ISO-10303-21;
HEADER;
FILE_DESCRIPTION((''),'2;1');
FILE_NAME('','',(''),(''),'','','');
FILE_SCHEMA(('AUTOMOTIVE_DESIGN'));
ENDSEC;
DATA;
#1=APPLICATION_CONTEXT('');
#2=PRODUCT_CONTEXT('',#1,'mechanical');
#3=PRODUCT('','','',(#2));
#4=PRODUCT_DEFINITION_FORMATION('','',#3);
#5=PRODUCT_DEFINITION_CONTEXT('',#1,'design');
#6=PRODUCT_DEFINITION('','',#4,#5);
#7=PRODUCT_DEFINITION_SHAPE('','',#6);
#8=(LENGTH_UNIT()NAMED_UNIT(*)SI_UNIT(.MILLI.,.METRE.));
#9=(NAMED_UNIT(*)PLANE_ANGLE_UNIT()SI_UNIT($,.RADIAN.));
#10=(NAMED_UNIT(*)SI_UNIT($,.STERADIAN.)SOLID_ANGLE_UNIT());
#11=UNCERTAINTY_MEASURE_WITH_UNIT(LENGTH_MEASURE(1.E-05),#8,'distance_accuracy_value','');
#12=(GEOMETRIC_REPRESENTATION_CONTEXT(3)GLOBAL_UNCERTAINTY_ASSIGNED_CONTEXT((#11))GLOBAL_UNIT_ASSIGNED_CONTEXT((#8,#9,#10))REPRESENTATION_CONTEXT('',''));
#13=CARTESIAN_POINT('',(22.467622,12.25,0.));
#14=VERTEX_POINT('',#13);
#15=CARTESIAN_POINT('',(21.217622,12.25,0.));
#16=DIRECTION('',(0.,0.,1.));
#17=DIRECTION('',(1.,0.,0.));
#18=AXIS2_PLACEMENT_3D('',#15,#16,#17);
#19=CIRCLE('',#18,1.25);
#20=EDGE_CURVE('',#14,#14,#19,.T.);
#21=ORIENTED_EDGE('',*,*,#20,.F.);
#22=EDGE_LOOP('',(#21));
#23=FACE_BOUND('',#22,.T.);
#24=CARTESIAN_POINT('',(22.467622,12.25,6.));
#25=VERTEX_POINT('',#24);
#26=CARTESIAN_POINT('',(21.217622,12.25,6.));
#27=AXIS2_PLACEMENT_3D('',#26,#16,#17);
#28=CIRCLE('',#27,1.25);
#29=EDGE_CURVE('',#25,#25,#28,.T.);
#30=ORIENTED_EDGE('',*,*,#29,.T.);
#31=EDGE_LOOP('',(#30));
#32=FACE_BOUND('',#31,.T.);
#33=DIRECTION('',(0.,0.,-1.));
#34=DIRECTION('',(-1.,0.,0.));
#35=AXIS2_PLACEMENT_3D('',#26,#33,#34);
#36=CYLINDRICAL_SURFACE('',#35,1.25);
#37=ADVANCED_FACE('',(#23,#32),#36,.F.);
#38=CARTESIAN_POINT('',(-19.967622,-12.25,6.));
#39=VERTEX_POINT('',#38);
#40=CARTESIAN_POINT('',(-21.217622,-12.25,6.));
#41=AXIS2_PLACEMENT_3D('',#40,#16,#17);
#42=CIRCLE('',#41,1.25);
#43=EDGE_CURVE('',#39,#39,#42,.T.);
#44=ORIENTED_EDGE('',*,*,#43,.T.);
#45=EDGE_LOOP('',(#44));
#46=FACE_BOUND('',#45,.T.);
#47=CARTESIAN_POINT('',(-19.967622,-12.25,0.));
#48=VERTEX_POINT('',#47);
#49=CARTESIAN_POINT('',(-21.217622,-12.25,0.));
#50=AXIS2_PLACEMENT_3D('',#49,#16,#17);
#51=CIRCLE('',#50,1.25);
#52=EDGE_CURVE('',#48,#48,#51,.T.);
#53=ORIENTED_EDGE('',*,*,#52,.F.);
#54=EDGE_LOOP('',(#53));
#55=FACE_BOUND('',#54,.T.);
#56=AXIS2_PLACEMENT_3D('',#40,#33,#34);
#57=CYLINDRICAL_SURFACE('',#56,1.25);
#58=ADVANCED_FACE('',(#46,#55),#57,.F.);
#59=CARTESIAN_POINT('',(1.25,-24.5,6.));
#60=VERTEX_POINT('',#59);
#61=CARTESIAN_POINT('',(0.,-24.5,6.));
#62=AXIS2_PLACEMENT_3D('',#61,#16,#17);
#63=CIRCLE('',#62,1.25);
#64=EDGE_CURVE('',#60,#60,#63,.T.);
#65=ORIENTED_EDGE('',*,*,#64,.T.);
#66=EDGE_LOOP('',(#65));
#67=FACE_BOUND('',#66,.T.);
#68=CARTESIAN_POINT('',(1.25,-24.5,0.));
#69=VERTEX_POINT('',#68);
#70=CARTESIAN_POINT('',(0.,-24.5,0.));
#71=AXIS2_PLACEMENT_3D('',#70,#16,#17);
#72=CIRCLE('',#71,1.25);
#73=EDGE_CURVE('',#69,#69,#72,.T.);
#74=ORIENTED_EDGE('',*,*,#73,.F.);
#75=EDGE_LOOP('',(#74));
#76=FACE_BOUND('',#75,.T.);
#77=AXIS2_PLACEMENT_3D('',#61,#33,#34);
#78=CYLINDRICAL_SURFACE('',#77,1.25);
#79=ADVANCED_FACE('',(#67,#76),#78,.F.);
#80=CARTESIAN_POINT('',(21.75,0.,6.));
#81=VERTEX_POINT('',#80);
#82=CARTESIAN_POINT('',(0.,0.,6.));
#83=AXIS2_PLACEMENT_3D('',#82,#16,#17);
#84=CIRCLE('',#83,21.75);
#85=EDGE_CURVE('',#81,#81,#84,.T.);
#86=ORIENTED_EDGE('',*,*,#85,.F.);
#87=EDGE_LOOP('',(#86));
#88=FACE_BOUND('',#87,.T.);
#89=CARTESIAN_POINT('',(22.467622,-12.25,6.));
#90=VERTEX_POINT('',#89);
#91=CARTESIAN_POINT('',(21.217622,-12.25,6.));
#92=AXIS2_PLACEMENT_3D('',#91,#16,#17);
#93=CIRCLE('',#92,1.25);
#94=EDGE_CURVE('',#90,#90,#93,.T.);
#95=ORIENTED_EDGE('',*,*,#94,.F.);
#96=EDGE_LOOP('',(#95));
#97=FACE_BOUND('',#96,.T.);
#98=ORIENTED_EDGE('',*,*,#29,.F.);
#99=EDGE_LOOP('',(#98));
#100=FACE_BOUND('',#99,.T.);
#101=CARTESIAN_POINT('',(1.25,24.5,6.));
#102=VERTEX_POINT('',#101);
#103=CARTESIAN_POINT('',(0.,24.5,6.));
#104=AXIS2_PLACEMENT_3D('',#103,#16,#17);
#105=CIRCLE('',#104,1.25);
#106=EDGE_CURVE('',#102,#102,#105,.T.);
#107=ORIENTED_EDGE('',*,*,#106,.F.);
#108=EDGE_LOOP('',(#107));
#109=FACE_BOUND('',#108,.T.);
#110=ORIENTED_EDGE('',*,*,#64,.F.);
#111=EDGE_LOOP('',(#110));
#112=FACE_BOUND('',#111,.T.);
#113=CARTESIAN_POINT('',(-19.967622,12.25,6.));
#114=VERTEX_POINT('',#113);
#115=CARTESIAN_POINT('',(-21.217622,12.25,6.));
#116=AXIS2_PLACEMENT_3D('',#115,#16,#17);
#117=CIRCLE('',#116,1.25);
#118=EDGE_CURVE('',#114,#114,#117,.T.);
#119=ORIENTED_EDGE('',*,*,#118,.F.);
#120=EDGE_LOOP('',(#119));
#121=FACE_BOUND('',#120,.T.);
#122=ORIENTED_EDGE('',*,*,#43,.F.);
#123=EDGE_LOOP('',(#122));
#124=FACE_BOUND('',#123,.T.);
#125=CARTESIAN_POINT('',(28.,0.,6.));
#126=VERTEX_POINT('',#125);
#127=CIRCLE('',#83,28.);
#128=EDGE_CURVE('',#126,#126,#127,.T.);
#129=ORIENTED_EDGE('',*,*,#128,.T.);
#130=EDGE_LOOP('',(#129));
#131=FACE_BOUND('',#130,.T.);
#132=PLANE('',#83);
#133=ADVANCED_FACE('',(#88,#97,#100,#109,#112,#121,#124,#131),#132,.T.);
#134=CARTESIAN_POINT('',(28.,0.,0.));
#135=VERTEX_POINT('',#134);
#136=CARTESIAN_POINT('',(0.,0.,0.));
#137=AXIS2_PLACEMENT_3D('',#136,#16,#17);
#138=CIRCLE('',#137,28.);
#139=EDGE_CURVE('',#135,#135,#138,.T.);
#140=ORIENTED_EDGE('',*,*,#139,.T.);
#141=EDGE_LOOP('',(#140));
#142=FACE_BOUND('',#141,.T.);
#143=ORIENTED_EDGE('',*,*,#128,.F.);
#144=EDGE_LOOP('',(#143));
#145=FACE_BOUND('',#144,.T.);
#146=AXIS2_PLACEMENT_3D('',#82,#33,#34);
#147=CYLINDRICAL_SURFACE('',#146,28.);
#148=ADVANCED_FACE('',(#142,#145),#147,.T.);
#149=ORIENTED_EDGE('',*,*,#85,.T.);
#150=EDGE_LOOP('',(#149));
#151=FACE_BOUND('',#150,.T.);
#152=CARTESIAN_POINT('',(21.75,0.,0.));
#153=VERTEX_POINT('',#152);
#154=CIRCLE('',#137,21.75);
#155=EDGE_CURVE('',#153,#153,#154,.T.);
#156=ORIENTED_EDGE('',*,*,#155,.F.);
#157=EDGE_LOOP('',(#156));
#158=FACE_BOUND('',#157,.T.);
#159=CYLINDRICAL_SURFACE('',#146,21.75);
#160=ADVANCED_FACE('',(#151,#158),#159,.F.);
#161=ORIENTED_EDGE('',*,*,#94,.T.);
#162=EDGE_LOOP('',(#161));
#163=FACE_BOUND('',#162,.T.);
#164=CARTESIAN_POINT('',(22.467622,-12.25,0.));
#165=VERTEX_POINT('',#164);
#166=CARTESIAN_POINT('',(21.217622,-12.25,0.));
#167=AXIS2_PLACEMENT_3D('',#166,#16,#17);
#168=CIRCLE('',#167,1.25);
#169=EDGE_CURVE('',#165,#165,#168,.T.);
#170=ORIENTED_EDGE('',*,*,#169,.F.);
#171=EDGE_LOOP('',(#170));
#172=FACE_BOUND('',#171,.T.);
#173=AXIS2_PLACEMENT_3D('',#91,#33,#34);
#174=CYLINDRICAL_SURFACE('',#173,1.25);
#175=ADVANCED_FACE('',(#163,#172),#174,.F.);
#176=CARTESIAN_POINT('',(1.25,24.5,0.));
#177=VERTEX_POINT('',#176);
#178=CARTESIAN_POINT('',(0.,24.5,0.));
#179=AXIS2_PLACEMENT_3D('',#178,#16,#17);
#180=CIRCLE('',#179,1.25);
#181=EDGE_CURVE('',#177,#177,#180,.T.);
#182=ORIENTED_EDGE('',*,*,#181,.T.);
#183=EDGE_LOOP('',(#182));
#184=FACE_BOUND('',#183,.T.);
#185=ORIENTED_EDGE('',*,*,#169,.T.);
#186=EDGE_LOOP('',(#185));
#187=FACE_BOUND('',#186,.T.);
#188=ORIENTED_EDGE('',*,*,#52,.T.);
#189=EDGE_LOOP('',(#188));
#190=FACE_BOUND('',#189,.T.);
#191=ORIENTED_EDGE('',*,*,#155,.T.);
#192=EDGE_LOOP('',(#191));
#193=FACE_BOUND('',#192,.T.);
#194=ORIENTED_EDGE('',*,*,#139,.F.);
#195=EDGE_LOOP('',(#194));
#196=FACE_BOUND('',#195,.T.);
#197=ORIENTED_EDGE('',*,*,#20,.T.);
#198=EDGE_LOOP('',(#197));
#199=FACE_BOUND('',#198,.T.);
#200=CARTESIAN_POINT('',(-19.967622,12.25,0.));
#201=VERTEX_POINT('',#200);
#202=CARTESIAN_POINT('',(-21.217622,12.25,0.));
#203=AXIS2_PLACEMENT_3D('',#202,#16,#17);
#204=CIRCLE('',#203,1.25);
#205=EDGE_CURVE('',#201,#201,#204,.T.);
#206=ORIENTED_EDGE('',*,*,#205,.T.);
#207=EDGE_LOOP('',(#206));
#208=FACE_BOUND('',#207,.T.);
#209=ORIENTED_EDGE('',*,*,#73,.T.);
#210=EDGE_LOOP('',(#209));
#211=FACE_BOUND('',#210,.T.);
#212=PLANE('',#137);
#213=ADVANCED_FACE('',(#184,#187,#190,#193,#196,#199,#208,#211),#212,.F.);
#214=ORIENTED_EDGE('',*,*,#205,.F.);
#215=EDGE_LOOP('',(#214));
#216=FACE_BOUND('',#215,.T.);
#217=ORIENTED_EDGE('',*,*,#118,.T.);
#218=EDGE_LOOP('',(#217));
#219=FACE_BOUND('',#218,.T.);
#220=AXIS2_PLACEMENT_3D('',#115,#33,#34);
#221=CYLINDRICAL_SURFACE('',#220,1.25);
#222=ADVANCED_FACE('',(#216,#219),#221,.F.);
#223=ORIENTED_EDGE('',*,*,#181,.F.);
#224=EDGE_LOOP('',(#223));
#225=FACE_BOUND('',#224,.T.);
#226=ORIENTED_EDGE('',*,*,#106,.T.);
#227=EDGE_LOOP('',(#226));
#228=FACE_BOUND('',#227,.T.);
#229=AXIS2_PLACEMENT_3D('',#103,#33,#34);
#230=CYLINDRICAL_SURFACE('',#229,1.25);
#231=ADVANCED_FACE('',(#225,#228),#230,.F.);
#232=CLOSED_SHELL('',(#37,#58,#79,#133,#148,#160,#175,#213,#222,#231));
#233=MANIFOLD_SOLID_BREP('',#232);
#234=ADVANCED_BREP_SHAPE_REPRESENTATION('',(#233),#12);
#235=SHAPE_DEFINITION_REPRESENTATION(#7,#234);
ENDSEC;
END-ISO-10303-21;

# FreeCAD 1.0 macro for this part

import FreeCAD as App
import Part
import Sketcher

doc = App.newDocument("Part")
params = doc.addObject("Spreadsheet::Sheet", "Params")
for row, (alias, value) in enumerate([
    ("sketch1_diameter", "56 mm"),
    ("sketch1_diameter2", "2.5 mm"),
    ("sketch1_diameter3", "43.5 mm"),
    ("pad1_length", "6 mm"),
], start=1):
    params.set(f"A{row}", alias)
    params.set(f"B{row}", "=" + value)
    params.setAlias(f"B{row}", alias)

body = doc.addObject("PartDesign::Body", "Body")

# Sketch on XY plane
sketch1 = body.newObject("Sketcher::SketchObject", "Sketch")
sketch1.AttachmentSupport = (doc.getObject("XY_Plane"), [""])
sketch1.MapMode = "FlatFace"
sketch1.addGeometry([
    Part.Circle(App.Vector(0, 0, 0), App.Vector(0, 0, 1), 28),  # 0
    Part.Circle(App.Vector(-21.2, -12.2, 0), App.Vector(0, 0, 1), 1.2),  # 1
    Part.Circle(App.Vector(0, -24.5, 0), App.Vector(0, 0, 1), 1.2),  # 2
    Part.Circle(App.Vector(0, 0, 0), App.Vector(0, 0, 1), 21.8),  # 3
    Part.Circle(App.Vector(21.2, -12.2, 0), App.Vector(0, 0, 1), 1.2),  # 4
    Part.Circle(App.Vector(-21.2, 12.2, 0), App.Vector(0, 0, 1), 1.2),  # 5
    Part.Circle(App.Vector(21.2, 12.2, 0), App.Vector(0, 0, 1), 1.2),  # 6
    Part.Circle(App.Vector(0, 24.5, 0), App.Vector(0, 0, 1), 1.2),  # 7
], False)
sketch1.addConstraint([
    Sketcher.Constraint("Coincident", 0, 3, -1, 1),
    Sketcher.Constraint("Coincident", 3, 3, -1, 1),
    Sketcher.Constraint("Equal", 1, 2),
    Sketcher.Constraint("Equal", 2, 4),
    Sketcher.Constraint("Equal", 4, 5),
    Sketcher.Constraint("Equal", 5, 6),
    Sketcher.Constraint("Equal", 6, 7),
    Sketcher.Constraint("Symmetric", 4, 3, 5, 3, -1, 1),
    Sketcher.Constraint("Symmetric", 1, 3, 6, 3, -1, 1),
    Sketcher.Constraint("Symmetric", 2, 3, 7, 3, -1, 1),
    Sketcher.Constraint("Symmetric", 1, 3, 4, 3, -2),
    Sketcher.Constraint("PointOnObject", 2, 3, -2),
    Sketcher.Constraint("Diameter", 0, 56.0),
    Sketcher.Constraint("Diameter", 1, 2.5),
    Sketcher.Constraint("Diameter", 3, 43.5),
    Sketcher.Constraint("DistanceY", 2, 3, -1, 1, 24.5),
    Sketcher.Constraint("DistanceY", 1, 3, 5, 3, 24.5),
    Sketcher.Constraint("DistanceX", 1, 3, -1, 1, 21.217622),
])
sketch1.setExpression("Constraints[12]", "Params.sketch1_diameter")
sketch1.setExpression("Constraints[13]", "Params.sketch1_diameter2")
sketch1.setExpression("Constraints[14]", "Params.sketch1_diameter3")
pad1 = body.newObject("PartDesign::Pad", "Pad")
pad1.Profile = sketch1
pad1.setExpression("Length", "Params.pad1_length")

doc.recompute()
